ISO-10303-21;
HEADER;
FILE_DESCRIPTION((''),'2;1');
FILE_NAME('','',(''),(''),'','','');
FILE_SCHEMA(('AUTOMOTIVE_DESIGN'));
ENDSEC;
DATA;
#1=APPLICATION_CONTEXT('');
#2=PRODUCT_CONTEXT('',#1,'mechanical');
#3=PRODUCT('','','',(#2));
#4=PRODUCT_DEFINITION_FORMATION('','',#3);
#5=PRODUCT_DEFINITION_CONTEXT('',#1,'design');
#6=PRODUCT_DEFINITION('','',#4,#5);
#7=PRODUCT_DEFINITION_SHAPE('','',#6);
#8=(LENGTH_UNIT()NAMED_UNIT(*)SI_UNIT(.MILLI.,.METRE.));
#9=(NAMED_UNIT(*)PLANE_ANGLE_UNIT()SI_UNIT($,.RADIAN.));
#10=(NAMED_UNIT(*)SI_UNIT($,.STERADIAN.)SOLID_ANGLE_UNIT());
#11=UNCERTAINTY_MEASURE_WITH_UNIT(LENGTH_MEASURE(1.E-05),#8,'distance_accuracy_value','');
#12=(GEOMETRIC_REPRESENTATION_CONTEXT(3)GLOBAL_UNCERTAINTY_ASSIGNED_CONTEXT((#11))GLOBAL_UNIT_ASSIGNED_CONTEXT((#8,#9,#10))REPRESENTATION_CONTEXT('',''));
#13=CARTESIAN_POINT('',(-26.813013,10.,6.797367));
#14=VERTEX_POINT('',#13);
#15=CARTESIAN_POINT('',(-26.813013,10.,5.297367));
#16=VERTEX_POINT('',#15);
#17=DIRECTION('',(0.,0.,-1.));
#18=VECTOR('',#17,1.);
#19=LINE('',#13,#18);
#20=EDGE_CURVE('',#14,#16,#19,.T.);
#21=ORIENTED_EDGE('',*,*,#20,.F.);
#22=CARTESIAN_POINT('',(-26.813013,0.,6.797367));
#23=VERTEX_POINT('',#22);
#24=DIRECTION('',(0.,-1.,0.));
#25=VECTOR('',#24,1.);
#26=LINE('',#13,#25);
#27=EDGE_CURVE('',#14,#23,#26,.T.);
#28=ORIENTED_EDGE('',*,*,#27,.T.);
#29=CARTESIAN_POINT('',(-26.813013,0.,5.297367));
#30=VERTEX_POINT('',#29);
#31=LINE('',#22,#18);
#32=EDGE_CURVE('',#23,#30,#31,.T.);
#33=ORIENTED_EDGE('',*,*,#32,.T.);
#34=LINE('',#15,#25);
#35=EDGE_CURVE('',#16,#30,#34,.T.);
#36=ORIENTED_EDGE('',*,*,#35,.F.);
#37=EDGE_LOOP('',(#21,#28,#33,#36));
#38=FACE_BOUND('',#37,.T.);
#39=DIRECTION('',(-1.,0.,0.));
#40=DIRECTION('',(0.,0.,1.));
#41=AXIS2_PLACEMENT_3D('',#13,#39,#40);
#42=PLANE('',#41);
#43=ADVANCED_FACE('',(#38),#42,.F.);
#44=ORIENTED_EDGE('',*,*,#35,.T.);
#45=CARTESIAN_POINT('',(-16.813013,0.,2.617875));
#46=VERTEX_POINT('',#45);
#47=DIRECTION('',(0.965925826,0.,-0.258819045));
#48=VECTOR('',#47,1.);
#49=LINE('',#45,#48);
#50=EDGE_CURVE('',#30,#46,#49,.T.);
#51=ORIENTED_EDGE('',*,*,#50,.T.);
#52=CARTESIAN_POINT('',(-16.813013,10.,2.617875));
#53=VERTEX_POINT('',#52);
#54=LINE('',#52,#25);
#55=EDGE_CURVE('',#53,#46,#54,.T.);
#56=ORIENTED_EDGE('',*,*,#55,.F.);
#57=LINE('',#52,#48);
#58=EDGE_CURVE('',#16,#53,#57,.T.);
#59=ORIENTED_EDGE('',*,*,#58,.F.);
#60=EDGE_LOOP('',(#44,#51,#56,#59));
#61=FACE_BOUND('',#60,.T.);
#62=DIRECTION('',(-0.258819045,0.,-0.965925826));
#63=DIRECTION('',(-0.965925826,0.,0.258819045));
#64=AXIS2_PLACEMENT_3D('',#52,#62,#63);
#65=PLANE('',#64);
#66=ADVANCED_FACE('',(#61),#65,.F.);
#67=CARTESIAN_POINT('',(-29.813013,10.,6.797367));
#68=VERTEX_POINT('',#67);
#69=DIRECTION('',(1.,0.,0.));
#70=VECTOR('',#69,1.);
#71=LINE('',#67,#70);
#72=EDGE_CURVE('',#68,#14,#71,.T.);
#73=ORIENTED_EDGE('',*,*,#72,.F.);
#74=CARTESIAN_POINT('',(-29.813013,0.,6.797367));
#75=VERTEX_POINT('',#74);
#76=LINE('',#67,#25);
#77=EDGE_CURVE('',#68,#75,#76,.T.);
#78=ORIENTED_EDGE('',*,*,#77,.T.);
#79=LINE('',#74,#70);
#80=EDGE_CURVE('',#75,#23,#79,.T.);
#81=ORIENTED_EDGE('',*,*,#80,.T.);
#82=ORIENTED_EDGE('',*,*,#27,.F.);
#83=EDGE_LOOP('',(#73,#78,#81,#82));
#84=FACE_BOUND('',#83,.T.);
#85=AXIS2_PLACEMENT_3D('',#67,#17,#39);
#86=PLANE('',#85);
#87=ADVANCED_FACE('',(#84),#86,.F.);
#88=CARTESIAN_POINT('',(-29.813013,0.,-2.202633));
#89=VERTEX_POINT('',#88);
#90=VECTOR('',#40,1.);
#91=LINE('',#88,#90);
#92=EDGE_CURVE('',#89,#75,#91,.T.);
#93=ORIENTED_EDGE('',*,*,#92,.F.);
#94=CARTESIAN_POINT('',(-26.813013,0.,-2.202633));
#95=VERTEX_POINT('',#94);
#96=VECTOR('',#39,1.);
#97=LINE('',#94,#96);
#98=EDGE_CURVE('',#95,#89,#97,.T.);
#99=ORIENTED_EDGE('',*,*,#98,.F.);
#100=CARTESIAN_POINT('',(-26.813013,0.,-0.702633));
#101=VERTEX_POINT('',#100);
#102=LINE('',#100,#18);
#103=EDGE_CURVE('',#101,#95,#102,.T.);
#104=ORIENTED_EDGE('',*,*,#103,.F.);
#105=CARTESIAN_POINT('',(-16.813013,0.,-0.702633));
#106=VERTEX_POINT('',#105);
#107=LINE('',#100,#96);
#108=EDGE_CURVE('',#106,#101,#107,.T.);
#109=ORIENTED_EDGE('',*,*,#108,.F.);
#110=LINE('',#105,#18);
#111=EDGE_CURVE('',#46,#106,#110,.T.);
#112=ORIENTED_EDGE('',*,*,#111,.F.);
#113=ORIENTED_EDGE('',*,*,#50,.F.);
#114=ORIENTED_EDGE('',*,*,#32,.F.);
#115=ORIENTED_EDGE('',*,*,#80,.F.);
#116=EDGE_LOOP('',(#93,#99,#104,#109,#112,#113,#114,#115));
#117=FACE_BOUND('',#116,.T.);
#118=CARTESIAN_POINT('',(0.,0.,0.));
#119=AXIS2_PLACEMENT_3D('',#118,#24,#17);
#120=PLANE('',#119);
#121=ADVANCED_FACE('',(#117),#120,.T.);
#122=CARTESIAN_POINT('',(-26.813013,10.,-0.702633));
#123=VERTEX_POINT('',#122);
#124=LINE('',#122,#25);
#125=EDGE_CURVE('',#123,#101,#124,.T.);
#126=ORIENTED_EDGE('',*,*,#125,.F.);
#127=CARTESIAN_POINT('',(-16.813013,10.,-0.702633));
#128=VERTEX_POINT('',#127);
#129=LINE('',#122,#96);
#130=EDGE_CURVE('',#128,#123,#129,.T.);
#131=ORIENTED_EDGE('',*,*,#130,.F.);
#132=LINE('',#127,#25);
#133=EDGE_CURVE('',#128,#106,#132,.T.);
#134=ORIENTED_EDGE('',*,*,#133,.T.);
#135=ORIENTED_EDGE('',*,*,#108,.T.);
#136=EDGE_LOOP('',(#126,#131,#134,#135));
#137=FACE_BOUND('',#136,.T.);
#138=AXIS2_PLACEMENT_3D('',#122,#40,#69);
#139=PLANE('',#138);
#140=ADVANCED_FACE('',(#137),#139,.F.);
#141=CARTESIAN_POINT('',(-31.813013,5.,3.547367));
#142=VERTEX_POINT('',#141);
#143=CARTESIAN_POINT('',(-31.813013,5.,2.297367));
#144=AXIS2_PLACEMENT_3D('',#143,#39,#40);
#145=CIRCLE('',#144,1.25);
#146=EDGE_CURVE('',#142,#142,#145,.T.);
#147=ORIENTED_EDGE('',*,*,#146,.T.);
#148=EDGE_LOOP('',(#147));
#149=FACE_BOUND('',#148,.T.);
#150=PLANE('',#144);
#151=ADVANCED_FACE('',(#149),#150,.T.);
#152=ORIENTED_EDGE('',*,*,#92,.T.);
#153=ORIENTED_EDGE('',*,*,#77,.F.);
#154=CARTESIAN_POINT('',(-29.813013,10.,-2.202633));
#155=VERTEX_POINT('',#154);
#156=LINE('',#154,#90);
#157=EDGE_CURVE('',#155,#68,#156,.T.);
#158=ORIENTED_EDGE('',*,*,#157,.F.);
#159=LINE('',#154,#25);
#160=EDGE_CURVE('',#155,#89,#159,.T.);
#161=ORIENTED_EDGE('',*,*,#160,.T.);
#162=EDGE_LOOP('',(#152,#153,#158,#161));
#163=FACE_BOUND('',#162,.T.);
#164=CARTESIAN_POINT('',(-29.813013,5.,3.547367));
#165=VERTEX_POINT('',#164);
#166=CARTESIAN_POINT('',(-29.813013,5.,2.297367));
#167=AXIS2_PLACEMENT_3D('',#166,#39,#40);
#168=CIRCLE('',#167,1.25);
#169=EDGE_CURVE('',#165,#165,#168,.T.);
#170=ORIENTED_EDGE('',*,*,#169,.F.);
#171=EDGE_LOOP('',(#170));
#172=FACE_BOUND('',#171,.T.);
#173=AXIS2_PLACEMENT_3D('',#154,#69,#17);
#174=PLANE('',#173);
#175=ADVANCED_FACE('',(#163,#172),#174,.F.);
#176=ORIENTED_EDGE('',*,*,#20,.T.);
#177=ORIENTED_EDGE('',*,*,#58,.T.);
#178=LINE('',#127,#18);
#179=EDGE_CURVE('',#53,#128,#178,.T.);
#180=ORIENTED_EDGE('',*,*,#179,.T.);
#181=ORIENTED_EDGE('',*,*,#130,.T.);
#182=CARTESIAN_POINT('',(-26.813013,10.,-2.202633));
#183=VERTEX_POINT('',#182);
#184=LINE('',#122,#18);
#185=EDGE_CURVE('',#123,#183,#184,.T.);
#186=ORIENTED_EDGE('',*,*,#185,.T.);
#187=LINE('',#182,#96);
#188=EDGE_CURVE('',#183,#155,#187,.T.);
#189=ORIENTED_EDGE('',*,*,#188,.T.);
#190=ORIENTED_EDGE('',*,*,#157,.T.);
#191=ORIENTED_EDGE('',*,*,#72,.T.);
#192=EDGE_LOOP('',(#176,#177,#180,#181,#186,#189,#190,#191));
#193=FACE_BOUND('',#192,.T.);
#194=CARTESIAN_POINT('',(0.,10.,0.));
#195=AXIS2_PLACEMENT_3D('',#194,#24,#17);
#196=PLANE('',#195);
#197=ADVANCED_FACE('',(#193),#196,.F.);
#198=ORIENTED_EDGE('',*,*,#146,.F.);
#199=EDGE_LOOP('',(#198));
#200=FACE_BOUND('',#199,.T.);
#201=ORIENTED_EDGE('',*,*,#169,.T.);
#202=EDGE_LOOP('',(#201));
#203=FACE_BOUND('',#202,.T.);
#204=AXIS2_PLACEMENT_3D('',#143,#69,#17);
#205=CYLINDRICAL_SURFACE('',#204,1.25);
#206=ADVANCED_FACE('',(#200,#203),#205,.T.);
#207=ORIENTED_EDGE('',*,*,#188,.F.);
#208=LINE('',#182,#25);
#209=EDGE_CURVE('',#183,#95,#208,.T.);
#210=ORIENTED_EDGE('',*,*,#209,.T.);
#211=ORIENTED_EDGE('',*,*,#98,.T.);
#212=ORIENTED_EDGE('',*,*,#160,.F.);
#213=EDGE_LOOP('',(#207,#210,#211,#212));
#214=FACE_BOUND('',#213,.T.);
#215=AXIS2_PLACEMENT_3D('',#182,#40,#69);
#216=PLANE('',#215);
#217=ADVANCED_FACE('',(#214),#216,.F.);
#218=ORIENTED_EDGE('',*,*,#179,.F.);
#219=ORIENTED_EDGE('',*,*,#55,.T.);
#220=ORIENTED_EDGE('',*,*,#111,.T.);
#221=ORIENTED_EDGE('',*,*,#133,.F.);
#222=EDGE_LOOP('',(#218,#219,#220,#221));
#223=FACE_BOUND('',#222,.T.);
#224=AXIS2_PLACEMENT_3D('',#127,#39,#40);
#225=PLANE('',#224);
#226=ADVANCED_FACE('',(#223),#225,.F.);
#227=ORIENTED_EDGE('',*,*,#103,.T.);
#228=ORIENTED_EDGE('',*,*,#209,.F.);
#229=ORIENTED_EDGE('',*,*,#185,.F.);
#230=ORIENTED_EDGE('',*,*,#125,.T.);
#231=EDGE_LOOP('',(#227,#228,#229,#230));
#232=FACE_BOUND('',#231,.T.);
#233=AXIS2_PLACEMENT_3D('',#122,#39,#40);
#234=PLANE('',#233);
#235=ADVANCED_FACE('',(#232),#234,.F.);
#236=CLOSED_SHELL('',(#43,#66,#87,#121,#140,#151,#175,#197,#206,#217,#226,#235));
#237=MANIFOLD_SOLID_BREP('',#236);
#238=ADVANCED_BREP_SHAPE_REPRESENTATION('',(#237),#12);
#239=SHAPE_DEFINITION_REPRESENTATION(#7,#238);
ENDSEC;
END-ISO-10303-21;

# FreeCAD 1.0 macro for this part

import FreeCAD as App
import Part
import Sketcher

V = App.Vector
Q = App.Units.Quantity

doc = App.newDocument("Part")
body = doc.addObject("PartDesign::Body", "Body")

sketch1 = body.newObject("Sketcher::SketchObject", "Sketch")
sketch1.AttachmentSupport = (doc.getObject("XZ_Plane"), [""])
sketch1.MapMode = "FlatFace"
sketch1.addGeometry(Part.LineSegment(V(-26.813013, 5.297367, 0), V(-16.813013, 2.617875, 0)), False)
sketch1.addGeometry(Part.LineSegment(V(-16.813013, 2.617875, 0), V(-16.813013, -0.702633, 0)), False)
sketch1.addGeometry(Part.LineSegment(V(-16.813013, -0.702633, 0), V(-26.813013, -0.702633, 0)), False)
sketch1.addGeometry(Part.LineSegment(V(-26.813013, -0.702633, 0), V(-26.813013, -2.202633, 0)), False)
sketch1.addGeometry(Part.LineSegment(V(-26.813013, -2.202633, 0), V(-29.813013, -2.202633, 0)), False)
sketch1.addGeometry(Part.LineSegment(V(-29.813013, -2.202633, 0), V(-29.813013, 6.797367, 0)), False)
sketch1.addGeometry(Part.LineSegment(V(-29.813013, 6.797367, 0), V(-26.813013, 6.797367, 0)), False)
sketch1.addGeometry(Part.LineSegment(V(-26.813013, 6.797367, 0), V(-26.813013, 5.297367, 0)), False)
sketch1.addConstraint(Sketcher.Constraint("Coincident", 0, 2, 1, 1))
sketch1.addConstraint(Sketcher.Constraint("Coincident", 1, 2, 2, 1))
sketch1.addConstraint(Sketcher.Constraint("Coincident", 2, 2, 3, 1))
sketch1.addConstraint(Sketcher.Constraint("Coincident", 3, 2, 4, 1))
sketch1.addConstraint(Sketcher.Constraint("Coincident", 4, 2, 5, 1))
sketch1.addConstraint(Sketcher.Constraint("Coincident", 5, 2, 6, 1))
sketch1.addConstraint(Sketcher.Constraint("Coincident", 6, 2, 7, 1))
sketch1.addConstraint(Sketcher.Constraint("Coincident", 7, 2, 0, 1))
sketch1.addConstraint(Sketcher.Constraint("Vertical", 1))
sketch1.addConstraint(Sketcher.Constraint("Horizontal", 2))
sketch1.addConstraint(Sketcher.Constraint("Vertical", 3))
sketch1.addConstraint(Sketcher.Constraint("Horizontal", 4))
sketch1.addConstraint(Sketcher.Constraint("Vertical", 5))
sketch1.addConstraint(Sketcher.Constraint("Horizontal", 6))
sketch1.addConstraint(Sketcher.Constraint("Vertical", 7))
sketch1.addConstraint(Sketcher.Constraint("Vertical", 3, 2, 6, 2))
sketch1.addConstraint(Sketcher.Constraint("Equal", 3, 7))
sketch1.addConstraint(Sketcher.Constraint("DistanceX", 2, 2, 2, 1, 10.0))
sketch1.addConstraint(Sketcher.Constraint("DistanceX", 4, 2, 4, 1, 3.0))
sketch1.addConstraint(Sketcher.Constraint("DistanceY", 5, 1, 5, 2, 9.0))
sketch1.addConstraint(Sketcher.Constraint("Angle", 0, Q("-15 deg")))
sketch1.addConstraint(Sketcher.Constraint("DistanceY", 3, 2, 3, 1, 1.5))
sketch1.addConstraint(Sketcher.Constraint("DistanceX", 0, 2, -1, 1, 16.813013))
sketch1.addConstraint(Sketcher.Constraint("DistanceY", -1, 1, 0, 2, 2.617875))
pad1 = body.newObject("PartDesign::Pad", "Pad")
pad1.Profile = sketch1
pad1.Length = 10
pad1.Reversed = True

sketch2 = body.newObject("Sketcher::SketchObject", "Sketch001")
sketch2.AttachmentSupport = (doc.getObject("YZ_Plane"), [""])
sketch2.MapMode = "FlatFace"
sketch2.AttachmentOffset = App.Placement(V(0, 0, -29.813013), App.Rotation())
sketch2.addGeometry(Part.Circle(V(5, 2.297367, 0), V(0, 0, 1), 1.25), False)
sketch2.addConstraint(Sketcher.Constraint("Diameter", 0, 2.5))
sketch2.addConstraint(Sketcher.Constraint("DistanceX", -1, 1, 0, 3, 5.0))
sketch2.addConstraint(Sketcher.Constraint("DistanceY", -1, 1, 0, 3, 2.297367))
pad2 = body.newObject("PartDesign::Pad", "Pad001")
pad2.Profile = sketch2
pad2.Length = 2
pad2.Reversed = True

doc.recompute()
